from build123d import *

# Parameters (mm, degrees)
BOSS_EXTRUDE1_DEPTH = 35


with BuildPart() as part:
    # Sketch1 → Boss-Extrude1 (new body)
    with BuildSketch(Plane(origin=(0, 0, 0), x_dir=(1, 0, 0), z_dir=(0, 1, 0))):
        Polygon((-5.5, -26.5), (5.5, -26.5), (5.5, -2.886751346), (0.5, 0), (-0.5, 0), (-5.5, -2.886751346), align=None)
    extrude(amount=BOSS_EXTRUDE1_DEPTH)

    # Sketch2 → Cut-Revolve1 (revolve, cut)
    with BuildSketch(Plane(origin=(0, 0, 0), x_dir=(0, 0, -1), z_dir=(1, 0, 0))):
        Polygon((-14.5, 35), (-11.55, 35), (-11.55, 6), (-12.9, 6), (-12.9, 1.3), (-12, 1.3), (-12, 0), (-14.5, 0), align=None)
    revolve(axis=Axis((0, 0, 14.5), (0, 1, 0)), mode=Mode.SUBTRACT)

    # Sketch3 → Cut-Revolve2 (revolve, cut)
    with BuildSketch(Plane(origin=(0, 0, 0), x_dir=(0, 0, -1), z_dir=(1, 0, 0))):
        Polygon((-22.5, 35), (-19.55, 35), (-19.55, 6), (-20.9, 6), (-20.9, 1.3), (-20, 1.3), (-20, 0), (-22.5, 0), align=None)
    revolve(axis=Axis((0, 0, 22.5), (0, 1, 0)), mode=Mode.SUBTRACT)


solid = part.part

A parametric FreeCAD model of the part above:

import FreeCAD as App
import Part
import Sketcher
from FreeCAD import Vector
Q = App.Units.Quantity


def add_polygon(sketch, points):
    """Adds a closed chain of lines whose ends are joined by coincident constraints."""
    first, n = sketch.GeometryCount, len(points)
    for a, b in zip(points, points[1:] + points[:1]):
        sketch.addGeometry(Part.LineSegment(App.Vector(*a, 0), App.Vector(*b, 0)), False)
    for i in range(n):
        sketch.addConstraint(Sketcher.Constraint("Coincident", first + i, 2, first + (i + 1) % n, 1))

doc = App.newDocument("Part")
body = doc.addObject("PartDesign::Body", "Body")

sketch1 = body.newObject("Sketcher::SketchObject", "Sketch")
sketch1.AttachmentSupport = (doc.getObject("XZ_Plane"), [""])
sketch1.MapMode = "FlatFace"
add_polygon(sketch1, [(-5.5, 26.5), (5.5, 26.5), (5.5, 2.9), (0.5, 0), (-0.5, 0), (-5.5, 2.9)])
sketch1.addConstraint([
    Sketcher.Constraint("Horizontal", 0),
    Sketcher.Constraint("Vertical", 1),
    Sketcher.Constraint("Horizontal", 3),
    Sketcher.Constraint("Vertical", 5),
    Sketcher.Constraint("Symmetric", 2, 2, 3, 2, -1, 1),
    Sketcher.Constraint("Symmetric", 1, 2, 4, 2, -2),
    Sketcher.Constraint("DistanceX", 0, 1, 0, 2, Q("11 mm")),
    Sketcher.Constraint("DistanceX", 3, 2, 3, 1, Q("1 mm")),
    Sketcher.Constraint("Angle", 2, Q("-150 deg")),
    Sketcher.Constraint("DistanceY", -1, 1, 0, 2, Q("26.5 mm")),
])
pad1 = body.newObject("PartDesign::Pad", "Pad")
pad1.Profile = sketch1
pad1.Length = 35
pad1.Reversed = True

sketch2 = body.newObject("Sketcher::SketchObject", "Sketch001")
sketch2.AttachmentSupport = (doc.getObject("YZ_Plane"), [""])
sketch2.MapMode = "FlatFace"
add_polygon(sketch2, [(35, 11.6), (35, 14.5), (0, 14.5), (0, 12), (1.3, 12), (1.3, 12.9), (6, 12.9), (6, 11.6)])
sketch2.addGeometry(Part.LineSegment(Vector(0, 14.5, 0), Vector(35, 14.5, 0)), True)
sketch2.addConstraint([
    Sketcher.Constraint("Vertical", 0),
    Sketcher.Constraint("Horizontal", 1),
    Sketcher.Constraint("Vertical", 2),
    Sketcher.Constraint("Horizontal", 3),
    Sketcher.Constraint("Vertical", 4),
    Sketcher.Constraint("Horizontal", 5),
    Sketcher.Constraint("Vertical", 6),
    Sketcher.Constraint("Horizontal", 7),
    Sketcher.Constraint("Horizontal", 8),
    Sketcher.Constraint("Coincident", 8, 1, 1, 2),
    Sketcher.Constraint("PointOnObject", 1, 2, -2),
    Sketcher.Constraint("Vertical", 7, 2, 8, 2),
    Sketcher.Constraint("DistanceX", 1, 2, 1, 1, Q("35 mm")),
    Sketcher.Constraint("DistanceX", 7, 1, 7, 2, Q("29 mm")),
    Sketcher.Constraint("DistanceX", 3, 1, 3, 2, Q("1.3 mm")),
    Sketcher.Constraint("DistanceY", 2, 2, 2, 1, Q("2.5 mm")),
    Sketcher.Constraint("DistanceY", 4, 1, 4, 2, Q("0.9 mm")),
    Sketcher.Constraint("DistanceY", -1, 1, 2, 2, Q("12 mm")),
    Sketcher.Constraint("DistanceY", 0, 1, 0, 2, Q("2.95 mm")),
])
groove = body.newObject("PartDesign::Groove", "Groove")
groove.Profile = sketch2
groove.ReferenceAxis = (sketch2, ["Axis0"])
groove.Angle = 360

sketch3 = body.newObject("Sketcher::SketchObject", "Sketch002")
sketch3.AttachmentSupport = (doc.getObject("YZ_Plane"), [""])
sketch3.MapMode = "FlatFace"
add_polygon(sketch3, [(35, 19.6), (35, 22.5), (0, 22.5), (0, 20), (1.3, 20), (1.3, 20.9), (6, 20.9), (6, 19.6)])
sketch3.addGeometry(Part.LineSegment(Vector(0, 22.5, 0), Vector(35, 22.5, 0)), True)
sketch3.addConstraint([
    Sketcher.Constraint("Vertical", 0),
    Sketcher.Constraint("Horizontal", 1),
    Sketcher.Constraint("Vertical", 2),
    Sketcher.Constraint("Horizontal", 3),
    Sketcher.Constraint("Vertical", 4),
    Sketcher.Constraint("Horizontal", 5),
    Sketcher.Constraint("Vertical", 6),
    Sketcher.Constraint("Horizontal", 7),
    Sketcher.Constraint("Horizontal", 8),
    Sketcher.Constraint("Coincident", 8, 1, 1, 2),
    Sketcher.Constraint("PointOnObject", 1, 2, -2),
    Sketcher.Constraint("Vertical", 7, 2, 8, 2),
    Sketcher.Constraint("DistanceX", 1, 2, 1, 1, Q("35 mm")),
    Sketcher.Constraint("DistanceX", 7, 1, 7, 2, Q("29 mm")),
    Sketcher.Constraint("DistanceX", 3, 1, 3, 2, Q("1.3 mm")),
    Sketcher.Constraint("DistanceY", 2, 2, 2, 1, Q("2.5 mm")),
    Sketcher.Constraint("DistanceY", 4, 1, 4, 2, Q("0.9 mm")),
    Sketcher.Constraint("DistanceY", -1, 1, 2, 2, Q("20 mm")),
    Sketcher.Constraint("DistanceY", 0, 1, 0, 2, Q("2.95 mm")),
])
groove2 = body.newObject("PartDesign::Groove", "Groove001")
groove2.Profile = sketch3
groove2.ReferenceAxis = (sketch3, ["Axis0"])
groove2.Angle = 360

doc.recompute()
